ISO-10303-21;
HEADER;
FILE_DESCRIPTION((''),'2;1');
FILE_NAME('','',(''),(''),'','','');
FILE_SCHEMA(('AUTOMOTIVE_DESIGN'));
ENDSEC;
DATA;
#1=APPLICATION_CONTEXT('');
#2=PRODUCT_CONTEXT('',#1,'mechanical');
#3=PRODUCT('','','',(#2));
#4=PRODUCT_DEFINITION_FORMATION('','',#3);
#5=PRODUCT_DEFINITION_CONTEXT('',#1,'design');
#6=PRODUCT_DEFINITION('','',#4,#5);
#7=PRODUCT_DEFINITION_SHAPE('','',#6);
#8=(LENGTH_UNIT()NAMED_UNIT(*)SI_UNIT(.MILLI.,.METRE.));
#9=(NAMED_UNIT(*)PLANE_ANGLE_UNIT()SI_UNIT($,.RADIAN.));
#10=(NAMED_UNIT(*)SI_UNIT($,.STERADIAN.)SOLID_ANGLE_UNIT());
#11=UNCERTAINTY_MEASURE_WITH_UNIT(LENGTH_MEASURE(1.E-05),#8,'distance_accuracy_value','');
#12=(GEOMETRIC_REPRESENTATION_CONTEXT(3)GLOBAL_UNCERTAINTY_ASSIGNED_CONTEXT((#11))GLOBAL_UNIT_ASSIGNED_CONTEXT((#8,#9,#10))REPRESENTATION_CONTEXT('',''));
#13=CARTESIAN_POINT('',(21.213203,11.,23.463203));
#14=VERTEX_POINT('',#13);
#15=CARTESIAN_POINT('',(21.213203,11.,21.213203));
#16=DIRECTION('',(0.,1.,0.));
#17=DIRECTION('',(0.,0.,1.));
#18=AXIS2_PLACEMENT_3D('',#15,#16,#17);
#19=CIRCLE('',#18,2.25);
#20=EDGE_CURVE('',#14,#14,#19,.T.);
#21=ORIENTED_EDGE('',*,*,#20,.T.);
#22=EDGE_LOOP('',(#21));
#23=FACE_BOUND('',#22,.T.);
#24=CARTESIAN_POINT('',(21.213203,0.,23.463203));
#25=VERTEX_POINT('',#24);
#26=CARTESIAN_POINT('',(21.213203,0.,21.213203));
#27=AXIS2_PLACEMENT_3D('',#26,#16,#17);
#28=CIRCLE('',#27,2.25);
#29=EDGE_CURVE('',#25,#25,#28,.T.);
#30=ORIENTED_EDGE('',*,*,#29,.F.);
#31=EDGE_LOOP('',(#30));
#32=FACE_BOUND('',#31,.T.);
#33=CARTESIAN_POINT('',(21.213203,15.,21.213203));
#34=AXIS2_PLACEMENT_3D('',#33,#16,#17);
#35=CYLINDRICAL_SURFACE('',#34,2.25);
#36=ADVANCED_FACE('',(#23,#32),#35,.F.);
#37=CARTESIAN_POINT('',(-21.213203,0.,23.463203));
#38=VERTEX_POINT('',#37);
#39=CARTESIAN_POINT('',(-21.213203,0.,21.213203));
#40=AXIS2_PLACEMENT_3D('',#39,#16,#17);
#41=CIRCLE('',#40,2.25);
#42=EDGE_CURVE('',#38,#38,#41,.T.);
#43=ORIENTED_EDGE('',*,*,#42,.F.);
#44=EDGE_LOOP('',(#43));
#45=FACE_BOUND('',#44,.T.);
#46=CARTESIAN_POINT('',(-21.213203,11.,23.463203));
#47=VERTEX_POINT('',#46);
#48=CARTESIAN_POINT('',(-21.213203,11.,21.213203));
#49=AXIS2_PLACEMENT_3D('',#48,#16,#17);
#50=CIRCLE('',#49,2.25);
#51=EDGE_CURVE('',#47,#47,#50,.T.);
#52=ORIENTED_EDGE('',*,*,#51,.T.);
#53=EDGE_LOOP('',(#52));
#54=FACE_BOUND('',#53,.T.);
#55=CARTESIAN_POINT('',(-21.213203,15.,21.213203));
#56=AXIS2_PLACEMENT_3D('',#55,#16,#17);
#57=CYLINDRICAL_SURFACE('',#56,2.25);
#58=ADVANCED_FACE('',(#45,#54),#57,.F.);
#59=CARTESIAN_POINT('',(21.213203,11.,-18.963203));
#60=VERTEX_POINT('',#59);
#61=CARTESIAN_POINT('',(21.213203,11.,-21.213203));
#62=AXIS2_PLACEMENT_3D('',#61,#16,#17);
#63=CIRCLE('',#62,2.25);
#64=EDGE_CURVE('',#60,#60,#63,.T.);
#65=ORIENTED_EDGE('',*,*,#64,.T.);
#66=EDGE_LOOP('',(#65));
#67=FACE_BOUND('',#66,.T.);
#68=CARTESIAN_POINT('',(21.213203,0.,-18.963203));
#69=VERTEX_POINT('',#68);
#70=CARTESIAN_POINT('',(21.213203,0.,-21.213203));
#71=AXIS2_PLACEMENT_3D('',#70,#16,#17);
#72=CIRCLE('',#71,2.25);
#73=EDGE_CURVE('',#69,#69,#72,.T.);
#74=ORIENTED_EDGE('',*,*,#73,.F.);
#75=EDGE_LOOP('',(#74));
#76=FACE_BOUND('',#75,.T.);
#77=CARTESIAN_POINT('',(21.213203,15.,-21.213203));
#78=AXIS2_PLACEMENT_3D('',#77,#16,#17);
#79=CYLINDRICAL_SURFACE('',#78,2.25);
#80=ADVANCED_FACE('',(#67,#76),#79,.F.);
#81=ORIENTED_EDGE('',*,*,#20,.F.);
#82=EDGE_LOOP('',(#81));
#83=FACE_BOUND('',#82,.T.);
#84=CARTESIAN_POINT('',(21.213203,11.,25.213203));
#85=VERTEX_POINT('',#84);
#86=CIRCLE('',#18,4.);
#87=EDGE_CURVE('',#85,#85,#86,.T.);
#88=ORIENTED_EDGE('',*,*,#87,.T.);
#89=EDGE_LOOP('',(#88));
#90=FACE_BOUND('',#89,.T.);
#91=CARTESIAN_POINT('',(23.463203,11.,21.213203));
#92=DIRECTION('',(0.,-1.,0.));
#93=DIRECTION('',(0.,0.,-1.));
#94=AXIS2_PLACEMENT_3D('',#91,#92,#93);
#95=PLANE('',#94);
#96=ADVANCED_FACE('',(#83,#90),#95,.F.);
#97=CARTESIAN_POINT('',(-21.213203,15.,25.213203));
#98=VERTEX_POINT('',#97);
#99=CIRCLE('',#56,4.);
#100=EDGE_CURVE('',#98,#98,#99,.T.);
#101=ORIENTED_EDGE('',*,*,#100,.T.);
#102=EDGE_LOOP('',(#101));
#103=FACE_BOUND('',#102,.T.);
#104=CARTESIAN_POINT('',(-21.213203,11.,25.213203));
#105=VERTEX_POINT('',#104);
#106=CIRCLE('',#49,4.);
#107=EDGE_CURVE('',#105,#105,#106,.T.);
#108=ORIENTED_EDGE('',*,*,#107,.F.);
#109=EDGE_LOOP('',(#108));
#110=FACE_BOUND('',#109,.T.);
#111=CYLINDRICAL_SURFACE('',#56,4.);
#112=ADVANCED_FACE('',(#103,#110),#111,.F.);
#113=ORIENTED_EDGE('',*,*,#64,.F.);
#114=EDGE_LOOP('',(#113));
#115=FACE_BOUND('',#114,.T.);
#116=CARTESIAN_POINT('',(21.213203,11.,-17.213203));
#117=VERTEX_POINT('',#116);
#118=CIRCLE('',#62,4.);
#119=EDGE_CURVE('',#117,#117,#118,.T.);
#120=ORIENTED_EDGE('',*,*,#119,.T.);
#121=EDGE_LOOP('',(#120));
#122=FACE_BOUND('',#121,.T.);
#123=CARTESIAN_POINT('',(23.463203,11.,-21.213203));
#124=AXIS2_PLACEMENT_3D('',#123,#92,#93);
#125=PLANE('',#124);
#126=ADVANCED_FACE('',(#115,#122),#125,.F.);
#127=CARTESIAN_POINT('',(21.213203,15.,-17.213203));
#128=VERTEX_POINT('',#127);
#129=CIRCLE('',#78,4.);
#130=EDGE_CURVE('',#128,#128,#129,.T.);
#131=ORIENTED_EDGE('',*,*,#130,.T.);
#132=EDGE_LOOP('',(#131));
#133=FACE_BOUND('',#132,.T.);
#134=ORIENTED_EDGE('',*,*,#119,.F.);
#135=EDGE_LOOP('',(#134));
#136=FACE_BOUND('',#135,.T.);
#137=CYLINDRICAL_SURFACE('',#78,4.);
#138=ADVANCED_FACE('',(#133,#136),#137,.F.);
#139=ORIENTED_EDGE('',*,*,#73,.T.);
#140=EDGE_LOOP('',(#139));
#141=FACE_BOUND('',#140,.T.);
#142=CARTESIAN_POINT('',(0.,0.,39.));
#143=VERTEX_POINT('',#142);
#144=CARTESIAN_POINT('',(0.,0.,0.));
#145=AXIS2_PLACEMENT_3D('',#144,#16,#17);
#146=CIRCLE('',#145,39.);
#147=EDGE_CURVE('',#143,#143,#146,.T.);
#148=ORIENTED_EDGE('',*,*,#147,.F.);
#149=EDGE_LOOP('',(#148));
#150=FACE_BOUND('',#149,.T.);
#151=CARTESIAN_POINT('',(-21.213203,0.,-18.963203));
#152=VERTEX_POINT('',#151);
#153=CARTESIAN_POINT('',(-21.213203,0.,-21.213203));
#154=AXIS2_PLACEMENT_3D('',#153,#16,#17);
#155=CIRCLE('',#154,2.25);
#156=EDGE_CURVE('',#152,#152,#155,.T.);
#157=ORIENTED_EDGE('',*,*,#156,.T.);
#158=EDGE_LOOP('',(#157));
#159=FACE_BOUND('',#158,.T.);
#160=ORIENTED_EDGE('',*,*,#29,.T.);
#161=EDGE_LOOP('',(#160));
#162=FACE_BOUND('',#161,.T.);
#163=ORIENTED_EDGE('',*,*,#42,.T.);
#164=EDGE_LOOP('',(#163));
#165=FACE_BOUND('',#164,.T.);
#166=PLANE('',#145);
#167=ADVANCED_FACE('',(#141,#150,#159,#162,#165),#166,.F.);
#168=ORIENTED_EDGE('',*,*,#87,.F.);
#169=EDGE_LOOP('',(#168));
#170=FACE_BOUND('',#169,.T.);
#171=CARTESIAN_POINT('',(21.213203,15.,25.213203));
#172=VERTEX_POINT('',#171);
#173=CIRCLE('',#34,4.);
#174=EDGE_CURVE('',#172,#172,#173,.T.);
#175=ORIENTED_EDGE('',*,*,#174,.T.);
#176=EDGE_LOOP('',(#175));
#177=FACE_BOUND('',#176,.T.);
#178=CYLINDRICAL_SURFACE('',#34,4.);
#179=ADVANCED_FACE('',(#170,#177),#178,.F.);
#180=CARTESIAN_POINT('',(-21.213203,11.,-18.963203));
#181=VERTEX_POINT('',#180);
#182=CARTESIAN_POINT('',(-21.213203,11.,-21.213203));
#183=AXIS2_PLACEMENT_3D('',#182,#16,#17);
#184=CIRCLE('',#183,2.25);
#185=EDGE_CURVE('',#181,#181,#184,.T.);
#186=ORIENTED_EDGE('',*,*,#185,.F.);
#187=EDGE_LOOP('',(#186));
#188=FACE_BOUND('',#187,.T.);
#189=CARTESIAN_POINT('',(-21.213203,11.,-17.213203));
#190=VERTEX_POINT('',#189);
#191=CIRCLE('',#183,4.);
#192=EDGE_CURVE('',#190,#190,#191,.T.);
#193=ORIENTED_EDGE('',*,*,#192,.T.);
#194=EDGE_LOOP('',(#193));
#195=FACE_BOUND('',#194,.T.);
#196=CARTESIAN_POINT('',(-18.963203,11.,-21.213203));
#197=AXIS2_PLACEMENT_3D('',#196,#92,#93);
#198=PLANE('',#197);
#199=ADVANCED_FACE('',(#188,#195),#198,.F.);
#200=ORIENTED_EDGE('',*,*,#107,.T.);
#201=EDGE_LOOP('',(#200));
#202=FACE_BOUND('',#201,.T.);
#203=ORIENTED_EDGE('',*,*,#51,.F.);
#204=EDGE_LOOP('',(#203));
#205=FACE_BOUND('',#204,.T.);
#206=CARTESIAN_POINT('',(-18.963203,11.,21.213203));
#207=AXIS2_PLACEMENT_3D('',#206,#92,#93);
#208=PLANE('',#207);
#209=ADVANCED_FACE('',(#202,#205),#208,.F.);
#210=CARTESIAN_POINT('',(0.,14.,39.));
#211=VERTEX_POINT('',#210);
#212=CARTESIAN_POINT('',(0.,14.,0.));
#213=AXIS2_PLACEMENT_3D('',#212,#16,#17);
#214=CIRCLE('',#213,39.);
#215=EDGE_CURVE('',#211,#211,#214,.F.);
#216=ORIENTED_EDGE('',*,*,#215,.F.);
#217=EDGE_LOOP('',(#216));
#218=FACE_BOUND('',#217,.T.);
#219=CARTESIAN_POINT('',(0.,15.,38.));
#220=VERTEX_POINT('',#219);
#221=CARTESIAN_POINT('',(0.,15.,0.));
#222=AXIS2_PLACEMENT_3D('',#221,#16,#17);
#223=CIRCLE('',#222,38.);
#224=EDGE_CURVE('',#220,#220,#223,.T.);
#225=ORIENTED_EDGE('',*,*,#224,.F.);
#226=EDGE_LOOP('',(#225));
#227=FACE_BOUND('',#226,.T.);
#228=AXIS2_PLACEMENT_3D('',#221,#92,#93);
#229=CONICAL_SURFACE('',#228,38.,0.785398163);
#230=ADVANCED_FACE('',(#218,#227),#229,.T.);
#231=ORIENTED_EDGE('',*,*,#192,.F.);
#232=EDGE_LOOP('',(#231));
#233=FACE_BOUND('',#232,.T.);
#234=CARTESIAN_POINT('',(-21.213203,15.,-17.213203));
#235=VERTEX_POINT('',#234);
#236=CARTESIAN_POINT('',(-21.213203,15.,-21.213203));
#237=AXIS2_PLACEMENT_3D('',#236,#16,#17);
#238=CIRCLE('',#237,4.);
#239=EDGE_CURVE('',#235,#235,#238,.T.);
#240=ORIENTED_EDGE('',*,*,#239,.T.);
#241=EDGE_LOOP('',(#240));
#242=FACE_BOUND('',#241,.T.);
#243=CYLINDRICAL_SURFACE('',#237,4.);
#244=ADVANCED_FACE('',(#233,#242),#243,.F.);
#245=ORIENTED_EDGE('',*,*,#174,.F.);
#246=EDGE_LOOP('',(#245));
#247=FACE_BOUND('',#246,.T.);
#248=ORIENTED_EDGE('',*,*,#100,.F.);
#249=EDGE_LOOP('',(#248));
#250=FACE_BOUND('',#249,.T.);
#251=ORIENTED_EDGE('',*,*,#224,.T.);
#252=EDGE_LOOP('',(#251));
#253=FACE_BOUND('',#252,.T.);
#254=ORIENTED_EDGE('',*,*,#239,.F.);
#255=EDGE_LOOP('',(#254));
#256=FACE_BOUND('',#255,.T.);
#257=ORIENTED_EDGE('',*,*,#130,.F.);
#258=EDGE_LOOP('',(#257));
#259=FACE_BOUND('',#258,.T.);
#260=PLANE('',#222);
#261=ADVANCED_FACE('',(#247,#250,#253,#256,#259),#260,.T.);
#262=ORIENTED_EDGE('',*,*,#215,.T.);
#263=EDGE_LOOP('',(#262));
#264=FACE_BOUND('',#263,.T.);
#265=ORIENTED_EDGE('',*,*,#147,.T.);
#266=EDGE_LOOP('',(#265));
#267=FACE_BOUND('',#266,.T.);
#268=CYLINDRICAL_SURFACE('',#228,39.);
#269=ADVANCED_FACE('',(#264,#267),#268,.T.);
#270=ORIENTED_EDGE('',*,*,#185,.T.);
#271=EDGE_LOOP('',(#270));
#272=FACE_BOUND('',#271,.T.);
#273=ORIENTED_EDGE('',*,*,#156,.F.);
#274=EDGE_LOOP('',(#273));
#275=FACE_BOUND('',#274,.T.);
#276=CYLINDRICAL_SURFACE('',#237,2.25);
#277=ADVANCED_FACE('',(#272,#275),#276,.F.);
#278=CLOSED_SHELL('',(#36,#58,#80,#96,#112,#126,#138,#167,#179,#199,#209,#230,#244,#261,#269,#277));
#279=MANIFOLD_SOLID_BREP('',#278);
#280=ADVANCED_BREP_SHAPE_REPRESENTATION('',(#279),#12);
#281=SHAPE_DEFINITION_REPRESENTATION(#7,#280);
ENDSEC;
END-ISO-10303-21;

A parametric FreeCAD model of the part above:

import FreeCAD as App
import Part
import Sketcher

V = App.Vector


def edges_at(feature, points):
    """Names of the edges that pass closest to the given points."""
    edges = feature.Shape.Edges
    near = lambda p: min(range(len(edges)), key=lambda i: edges[i].distToShape(Part.Vertex(*p))[0])
    return sorted({f"Edge{near(p) + 1}" for p in points})

doc = App.newDocument("Part")
params = doc.addObject("Spreadsheet::Sheet", "Params")
for row, (alias, value) in enumerate([
    ("sketch1_diameter", "78 mm"),
    ("pad1_length", "15 mm"),
    ("sketch2_diameter", "4.5 mm"),
    ("hole_diameter", "4.5 mm"),
    ("hole_cbore_diameter", "8 mm"),
    ("hole_cbore_depth", "4 mm"),
    ("chamfer_size", "1 mm"),
], start=1):
    params.set(f"A{row}", alias)
    params.set(f"B{row}", "=" + value)
    params.setAlias(f"B{row}", alias)

body = doc.addObject("PartDesign::Body", "Body")

# Sketch on XZ plane
sketch1 = doc.addObject("Sketcher::SketchObject", "Sketch")
body.addObject(sketch1)
sketch1.AttachmentSupport = (doc.XZ_Plane, [""])
sketch1.MapMode = "FlatFace"
sketch1.addGeometry(Part.Circle(V(0, 0, 0), V(0, 0, 1), 39), False)
sketch1.addConstraint(Sketcher.Constraint("Coincident", 0, 3, -1, 1))
sketch1.addConstraint(Sketcher.Constraint("Diameter", 0, 78.0))
sketch1.setExpression("Constraints[1]", "Params.sketch1_diameter")
pad1 = doc.addObject("PartDesign::Pad", "Pad")
body.addObject(pad1)
pad1.Profile = sketch1
pad1.setExpression("Length", "Params.pad1_length")
pad1.Reversed = True

# Sketch on XZ plane
sketch2 = doc.addObject("Sketcher::SketchObject", "Sketch001")
body.addObject(sketch2)
sketch2.AttachmentSupport = (doc.XZ_Plane, [""])
sketch2.MapMode = "FlatFace"
sketch2.AttachmentOffset = App.Placement(V(0, 0, -15), App.Rotation())
sketch2.addGeometry(Part.Circle(V(-21.2, -21.2, 0), V(0, 0, 1), 2.2), False)
sketch2.addGeometry(Part.Circle(V(-21.2, 21.2, 0), V(0, 0, 1), 2.2), False)
sketch2.addGeometry(Part.Circle(V(21.2, 21.2, 0), V(0, 0, 1), 2.2), False)
sketch2.addGeometry(Part.Circle(V(21.2, -21.2, 0), V(0, 0, 1), 2.2), False)
sketch2.addConstraint(Sketcher.Constraint("Equal", 0, 1))
sketch2.addConstraint(Sketcher.Constraint("Equal", 1, 2))
sketch2.addConstraint(Sketcher.Constraint("Equal", 2, 3))
sketch2.addConstraint(Sketcher.Constraint("Symmetric", 0, 3, 2, 3, -1, 1))
sketch2.addConstraint(Sketcher.Constraint("Symmetric", 1, 3, 3, 3, -1, 1))
sketch2.addConstraint(Sketcher.Constraint("Symmetric", 1, 3, 2, 3, -2))
sketch2.addConstraint(Sketcher.Constraint("Diameter", 0, 4.5))
sketch2.addConstraint(Sketcher.Constraint("DistanceX", 0, 3, -1, 1, 21.213203))
sketch2.addConstraint(Sketcher.Constraint("DistanceY", 0, 3, -1, 1, 21.213203))
sketch2.setExpression("Constraints[6]", "Params.sketch2_diameter")
doc.recompute()
hole = doc.addObject("PartDesign::Hole", "Hole")
body.addObject(hole)
hole.Profile = sketch2
hole.ThreadType = "None"
hole.setExpression("Diameter", "Params.hole_diameter")
hole.DepthType = "ThroughAll"
hole.HoleCutType = "Counterbore"
hole.setExpression("HoleCutDiameter", "Params.hole_cbore_diameter")
hole.setExpression("HoleCutDepth", "Params.hole_cbore_depth")
hole.Reversed = True
doc.recompute()

chamfer = doc.addObject("PartDesign::Chamfer", "Chamfer")
body.addObject(chamfer)
chamfer.Base = (hole, edges_at(hole, [(-39, 15, 0)]))
chamfer.setExpression("Size", "Params.chamfer_size")

doc.recompute()
